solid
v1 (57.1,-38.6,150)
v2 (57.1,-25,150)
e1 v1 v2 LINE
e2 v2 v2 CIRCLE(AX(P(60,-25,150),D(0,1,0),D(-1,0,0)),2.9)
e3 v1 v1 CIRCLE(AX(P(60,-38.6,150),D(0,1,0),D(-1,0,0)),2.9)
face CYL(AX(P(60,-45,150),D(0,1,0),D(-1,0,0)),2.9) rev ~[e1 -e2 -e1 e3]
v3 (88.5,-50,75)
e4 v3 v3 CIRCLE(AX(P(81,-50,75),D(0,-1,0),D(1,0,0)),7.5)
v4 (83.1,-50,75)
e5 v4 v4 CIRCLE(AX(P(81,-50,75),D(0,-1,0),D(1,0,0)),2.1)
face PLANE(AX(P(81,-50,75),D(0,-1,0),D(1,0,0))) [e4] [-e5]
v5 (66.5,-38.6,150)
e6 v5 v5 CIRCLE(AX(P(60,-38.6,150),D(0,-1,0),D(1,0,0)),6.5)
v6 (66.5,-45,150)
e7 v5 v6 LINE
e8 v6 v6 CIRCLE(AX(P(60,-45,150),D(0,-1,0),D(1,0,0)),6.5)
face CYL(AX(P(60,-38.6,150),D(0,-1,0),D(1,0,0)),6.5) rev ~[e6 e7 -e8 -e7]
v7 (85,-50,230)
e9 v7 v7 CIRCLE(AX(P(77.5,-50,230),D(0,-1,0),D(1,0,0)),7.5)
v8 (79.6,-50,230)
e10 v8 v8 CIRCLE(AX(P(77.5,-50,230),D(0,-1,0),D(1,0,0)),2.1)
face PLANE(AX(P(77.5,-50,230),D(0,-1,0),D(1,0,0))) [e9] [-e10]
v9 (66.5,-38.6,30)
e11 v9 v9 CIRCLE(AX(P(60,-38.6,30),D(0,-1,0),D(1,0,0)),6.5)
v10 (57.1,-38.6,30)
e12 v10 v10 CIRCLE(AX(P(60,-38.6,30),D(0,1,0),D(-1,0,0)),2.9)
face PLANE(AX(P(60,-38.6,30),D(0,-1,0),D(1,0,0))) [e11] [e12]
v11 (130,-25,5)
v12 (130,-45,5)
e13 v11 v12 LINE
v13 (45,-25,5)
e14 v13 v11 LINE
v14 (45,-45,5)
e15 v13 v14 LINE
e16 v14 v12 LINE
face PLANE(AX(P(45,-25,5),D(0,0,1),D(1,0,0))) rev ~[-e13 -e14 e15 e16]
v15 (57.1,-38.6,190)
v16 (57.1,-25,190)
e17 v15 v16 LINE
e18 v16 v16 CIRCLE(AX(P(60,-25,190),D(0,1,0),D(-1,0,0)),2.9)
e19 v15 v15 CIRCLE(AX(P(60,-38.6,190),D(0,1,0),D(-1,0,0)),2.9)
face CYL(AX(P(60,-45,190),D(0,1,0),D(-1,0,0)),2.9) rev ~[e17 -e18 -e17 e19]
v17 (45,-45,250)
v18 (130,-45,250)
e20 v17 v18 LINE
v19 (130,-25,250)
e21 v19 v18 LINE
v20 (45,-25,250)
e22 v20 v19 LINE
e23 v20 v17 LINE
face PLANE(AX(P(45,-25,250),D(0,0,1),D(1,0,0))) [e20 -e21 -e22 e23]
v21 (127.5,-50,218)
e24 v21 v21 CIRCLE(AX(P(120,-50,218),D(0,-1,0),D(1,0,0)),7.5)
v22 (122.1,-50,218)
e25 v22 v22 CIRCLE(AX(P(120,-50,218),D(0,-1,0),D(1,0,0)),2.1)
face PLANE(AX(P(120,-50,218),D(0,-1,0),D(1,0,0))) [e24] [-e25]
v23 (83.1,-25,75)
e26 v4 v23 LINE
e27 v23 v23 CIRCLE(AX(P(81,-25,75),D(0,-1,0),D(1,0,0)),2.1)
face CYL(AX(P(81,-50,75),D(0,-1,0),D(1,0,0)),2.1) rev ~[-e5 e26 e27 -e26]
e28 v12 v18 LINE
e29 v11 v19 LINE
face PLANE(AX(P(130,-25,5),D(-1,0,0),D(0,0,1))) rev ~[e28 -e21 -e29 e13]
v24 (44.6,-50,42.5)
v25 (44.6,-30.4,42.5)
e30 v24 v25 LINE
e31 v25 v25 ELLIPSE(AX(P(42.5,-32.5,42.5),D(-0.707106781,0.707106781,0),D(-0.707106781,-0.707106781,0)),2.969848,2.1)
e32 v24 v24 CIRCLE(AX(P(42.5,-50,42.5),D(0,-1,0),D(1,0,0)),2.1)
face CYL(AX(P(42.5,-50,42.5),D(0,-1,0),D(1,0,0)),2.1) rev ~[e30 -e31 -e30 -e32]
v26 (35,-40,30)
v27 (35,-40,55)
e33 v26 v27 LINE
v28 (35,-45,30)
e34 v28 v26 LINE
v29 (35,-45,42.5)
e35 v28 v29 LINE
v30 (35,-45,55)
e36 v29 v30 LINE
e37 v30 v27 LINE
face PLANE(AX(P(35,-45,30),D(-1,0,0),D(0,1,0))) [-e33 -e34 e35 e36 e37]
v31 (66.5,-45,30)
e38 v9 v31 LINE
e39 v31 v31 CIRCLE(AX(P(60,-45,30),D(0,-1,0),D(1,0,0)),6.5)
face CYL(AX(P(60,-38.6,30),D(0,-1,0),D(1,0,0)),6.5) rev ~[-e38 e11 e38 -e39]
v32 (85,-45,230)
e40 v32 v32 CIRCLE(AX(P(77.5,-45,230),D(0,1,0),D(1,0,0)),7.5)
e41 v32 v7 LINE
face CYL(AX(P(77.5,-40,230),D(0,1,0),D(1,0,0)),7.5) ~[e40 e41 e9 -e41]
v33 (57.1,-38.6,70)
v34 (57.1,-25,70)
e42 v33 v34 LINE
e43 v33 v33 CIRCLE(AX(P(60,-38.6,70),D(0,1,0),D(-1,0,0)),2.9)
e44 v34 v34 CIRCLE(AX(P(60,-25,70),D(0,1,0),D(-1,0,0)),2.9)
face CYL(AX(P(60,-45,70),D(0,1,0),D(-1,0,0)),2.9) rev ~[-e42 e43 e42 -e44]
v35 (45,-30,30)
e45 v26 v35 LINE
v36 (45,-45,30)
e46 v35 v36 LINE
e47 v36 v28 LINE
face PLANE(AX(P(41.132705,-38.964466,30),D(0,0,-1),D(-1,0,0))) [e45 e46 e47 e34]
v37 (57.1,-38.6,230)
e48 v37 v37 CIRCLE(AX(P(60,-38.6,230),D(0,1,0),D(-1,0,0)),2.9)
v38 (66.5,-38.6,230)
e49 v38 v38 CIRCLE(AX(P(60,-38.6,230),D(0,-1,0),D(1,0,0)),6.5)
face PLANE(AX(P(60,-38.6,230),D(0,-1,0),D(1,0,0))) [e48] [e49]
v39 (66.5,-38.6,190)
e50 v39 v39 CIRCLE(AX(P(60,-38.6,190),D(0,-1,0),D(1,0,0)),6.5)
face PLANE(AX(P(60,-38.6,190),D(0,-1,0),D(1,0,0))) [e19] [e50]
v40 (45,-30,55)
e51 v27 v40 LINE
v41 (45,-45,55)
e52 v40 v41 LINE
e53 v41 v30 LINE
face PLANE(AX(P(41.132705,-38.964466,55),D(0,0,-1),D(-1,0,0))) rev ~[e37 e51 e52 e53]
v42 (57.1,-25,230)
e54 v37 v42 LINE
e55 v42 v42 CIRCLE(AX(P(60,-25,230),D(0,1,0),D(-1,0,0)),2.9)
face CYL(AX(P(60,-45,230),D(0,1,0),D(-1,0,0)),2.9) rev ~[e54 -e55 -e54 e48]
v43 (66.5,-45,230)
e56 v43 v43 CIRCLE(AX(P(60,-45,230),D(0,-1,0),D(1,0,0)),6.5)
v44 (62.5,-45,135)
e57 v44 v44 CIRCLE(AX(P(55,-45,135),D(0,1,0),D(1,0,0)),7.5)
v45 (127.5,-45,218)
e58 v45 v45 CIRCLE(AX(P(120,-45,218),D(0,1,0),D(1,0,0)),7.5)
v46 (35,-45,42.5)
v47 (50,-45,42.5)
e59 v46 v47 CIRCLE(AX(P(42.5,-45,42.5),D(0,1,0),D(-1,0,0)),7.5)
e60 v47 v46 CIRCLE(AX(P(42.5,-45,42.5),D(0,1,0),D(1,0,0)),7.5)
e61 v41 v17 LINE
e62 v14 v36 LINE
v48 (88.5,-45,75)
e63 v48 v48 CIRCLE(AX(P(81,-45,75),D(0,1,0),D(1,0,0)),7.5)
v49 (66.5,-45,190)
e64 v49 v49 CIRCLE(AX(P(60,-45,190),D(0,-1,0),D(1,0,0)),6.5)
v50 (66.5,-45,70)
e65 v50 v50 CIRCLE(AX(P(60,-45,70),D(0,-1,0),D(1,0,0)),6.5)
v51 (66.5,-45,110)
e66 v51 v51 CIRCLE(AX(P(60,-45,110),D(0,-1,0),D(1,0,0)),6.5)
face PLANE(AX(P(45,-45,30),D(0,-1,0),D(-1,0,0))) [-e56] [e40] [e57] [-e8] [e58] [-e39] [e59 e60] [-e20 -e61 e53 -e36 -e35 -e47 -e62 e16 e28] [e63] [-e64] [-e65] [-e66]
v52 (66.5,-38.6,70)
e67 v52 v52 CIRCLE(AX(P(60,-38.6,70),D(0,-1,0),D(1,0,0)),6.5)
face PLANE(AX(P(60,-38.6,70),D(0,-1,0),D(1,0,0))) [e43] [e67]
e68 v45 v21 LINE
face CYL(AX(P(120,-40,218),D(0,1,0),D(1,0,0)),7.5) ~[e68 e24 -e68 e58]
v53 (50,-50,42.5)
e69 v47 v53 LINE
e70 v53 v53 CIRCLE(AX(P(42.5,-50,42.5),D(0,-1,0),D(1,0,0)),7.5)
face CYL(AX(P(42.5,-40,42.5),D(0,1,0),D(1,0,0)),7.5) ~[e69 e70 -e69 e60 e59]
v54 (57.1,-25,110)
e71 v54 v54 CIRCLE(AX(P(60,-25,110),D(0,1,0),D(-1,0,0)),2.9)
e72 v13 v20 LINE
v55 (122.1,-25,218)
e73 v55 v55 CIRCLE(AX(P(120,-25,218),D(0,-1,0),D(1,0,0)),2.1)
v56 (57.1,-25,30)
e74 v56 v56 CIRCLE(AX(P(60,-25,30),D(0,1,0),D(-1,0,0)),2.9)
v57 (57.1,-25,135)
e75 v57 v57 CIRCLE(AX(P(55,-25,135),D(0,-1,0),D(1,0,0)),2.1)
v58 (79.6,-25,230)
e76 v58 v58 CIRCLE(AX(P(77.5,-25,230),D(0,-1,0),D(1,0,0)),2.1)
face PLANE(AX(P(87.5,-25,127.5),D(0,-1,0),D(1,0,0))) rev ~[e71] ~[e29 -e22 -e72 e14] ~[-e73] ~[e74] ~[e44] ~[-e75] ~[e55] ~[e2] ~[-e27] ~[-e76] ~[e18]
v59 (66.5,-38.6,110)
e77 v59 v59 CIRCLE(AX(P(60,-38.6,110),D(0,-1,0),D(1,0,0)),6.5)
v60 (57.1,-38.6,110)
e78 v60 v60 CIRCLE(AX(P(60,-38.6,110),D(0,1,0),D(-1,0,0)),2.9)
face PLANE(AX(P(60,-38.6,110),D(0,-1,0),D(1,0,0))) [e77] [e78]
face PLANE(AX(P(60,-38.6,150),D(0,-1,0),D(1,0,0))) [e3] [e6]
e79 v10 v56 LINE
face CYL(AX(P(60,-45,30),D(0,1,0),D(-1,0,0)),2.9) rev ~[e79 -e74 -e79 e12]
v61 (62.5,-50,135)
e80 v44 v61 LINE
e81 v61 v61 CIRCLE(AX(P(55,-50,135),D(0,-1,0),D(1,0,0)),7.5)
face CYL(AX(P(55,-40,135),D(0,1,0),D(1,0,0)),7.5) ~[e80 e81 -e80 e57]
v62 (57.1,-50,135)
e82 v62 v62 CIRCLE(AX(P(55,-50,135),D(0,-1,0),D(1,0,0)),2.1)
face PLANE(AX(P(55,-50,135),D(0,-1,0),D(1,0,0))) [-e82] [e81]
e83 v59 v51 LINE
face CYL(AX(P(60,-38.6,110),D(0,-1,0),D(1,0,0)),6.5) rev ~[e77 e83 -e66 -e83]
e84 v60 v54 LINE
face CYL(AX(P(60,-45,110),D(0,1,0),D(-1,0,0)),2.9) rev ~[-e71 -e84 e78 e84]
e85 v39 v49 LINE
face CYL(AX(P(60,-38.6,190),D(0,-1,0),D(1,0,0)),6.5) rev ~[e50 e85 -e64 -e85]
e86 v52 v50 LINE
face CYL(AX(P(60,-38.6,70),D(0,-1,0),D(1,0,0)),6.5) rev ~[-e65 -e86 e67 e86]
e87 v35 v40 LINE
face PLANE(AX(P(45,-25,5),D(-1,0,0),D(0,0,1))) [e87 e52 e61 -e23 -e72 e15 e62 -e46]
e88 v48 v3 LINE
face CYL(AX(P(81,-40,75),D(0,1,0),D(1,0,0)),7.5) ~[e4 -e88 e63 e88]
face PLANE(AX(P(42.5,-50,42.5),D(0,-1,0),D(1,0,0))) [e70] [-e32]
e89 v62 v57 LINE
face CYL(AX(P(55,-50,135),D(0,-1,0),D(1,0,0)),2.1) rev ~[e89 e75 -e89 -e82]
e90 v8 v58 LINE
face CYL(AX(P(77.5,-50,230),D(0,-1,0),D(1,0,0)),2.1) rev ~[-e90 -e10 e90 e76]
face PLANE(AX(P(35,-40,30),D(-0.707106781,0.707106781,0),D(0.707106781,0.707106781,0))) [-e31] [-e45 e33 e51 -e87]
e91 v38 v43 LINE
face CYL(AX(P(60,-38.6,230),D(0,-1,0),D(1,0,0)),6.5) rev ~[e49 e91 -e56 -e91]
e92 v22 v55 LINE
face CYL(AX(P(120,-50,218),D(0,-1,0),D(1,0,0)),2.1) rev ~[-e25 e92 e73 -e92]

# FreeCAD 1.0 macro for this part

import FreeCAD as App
import Part
import Sketcher

V = App.Vector

doc = App.newDocument("Part")
body = doc.addObject("PartDesign::Body", "Body")

# Sketch on XZ plane
sketch1 = body.newObject("Sketcher::SketchObject", "Sketch")
sketch1.AttachmentSupport = (doc.getObject("XZ_Plane"), [""])
sketch1.MapMode = "FlatFace"
sketch1.AttachmentOffset = App.Placement(V(0, 0, 25), App.Rotation())
sketch1.addGeometry(Part.LineSegment(V(45, 250, 0), V(45, 5, 0)), False)
sketch1.addGeometry(Part.LineSegment(V(45, 5, 0), V(130, 5, 0)), False)
sketch1.addGeometry(Part.LineSegment(V(130, 5, 0), V(130, 250, 0)), False)
sketch1.addGeometry(Part.LineSegment(V(130, 250, 0), V(45, 250, 0)), False)
sketch1.addConstraint(Sketcher.Constraint("Coincident", 0, 2, 1, 1))
sketch1.addConstraint(Sketcher.Constraint("Coincident", 1, 2, 2, 1))
sketch1.addConstraint(Sketcher.Constraint("Coincident", 2, 2, 3, 1))
sketch1.addConstraint(Sketcher.Constraint("Coincident", 3, 2, 0, 1))
sketch1.addConstraint(Sketcher.Constraint("Vertical", 0))
sketch1.addConstraint(Sketcher.Constraint("Horizontal", 1))
sketch1.addConstraint(Sketcher.Constraint("Vertical", 2))
sketch1.addConstraint(Sketcher.Constraint("Horizontal", 3))
sketch1.addConstraint(Sketcher.Constraint("DistanceX", 1, 1, 1, 2, 85.0))
sketch1.addConstraint(Sketcher.Constraint("DistanceY", 0, 2, 0, 1, 245.0))
sketch1.addConstraint(Sketcher.Constraint("DistanceX", -1, 1, 0, 2, 45.0))
sketch1.addConstraint(Sketcher.Constraint("DistanceY", -1, 1, 0, 2, 5.0))
pad1 = body.newObject("PartDesign::Pad", "Pad")
pad1.Profile = sketch1
pad1.Length = 20

# Sketch on XZ plane
sketch2 = body.newObject("Sketcher::SketchObject", "Sketch001")
sketch2.AttachmentSupport = (doc.getObject("XZ_Plane"), [""])
sketch2.MapMode = "FlatFace"
sketch2.AttachmentOffset = App.Placement(V(0, 0, 40), App.Rotation())
sketch2.addGeometry(Part.Circle(V(77.5, 230, 0), V(0, 0, 1), 7.5), False)
sketch2.addGeometry(Part.Circle(V(120, 218, 0), V(0, 0, 1), 7.5), False)
sketch2.addGeometry(Part.Circle(V(55, 135, 0), V(0, 0, 1), 7.5), False)
sketch2.addGeometry(Part.Circle(V(42.5, 42.5, 0), V(0, 0, 1), 7.5), False)
sketch2.addGeometry(Part.Circle(V(81, 75, 0), V(0, 0, 1), 7.5), False)
sketch2.addConstraint(Sketcher.Constraint("Equal", 0, 1))
sketch2.addConstraint(Sketcher.Constraint("Equal", 1, 2))
sketch2.addConstraint(Sketcher.Constraint("Equal", 2, 3))
sketch2.addConstraint(Sketcher.Constraint("Equal", 3, 4))
sketch2.addConstraint(Sketcher.Constraint("Diameter", 0, 15.0))
sketch2.addConstraint(Sketcher.Constraint("DistanceY", -1, 1, 0, 3, 230.0))
sketch2.addConstraint(Sketcher.Constraint("DistanceX", -1, 1, 1, 3, 120.0))
sketch2.addConstraint(Sketcher.Constraint("DistanceY", -1, 1, 1, 3, 218.0))
sketch2.addConstraint(Sketcher.Constraint("DistanceX", -1, 1, 2, 3, 55.0))
sketch2.addConstraint(Sketcher.Constraint("DistanceY", -1, 1, 2, 3, 135.0))
sketch2.addConstraint(Sketcher.Constraint("DistanceX", -1, 1, 4, 3, 81.0))
sketch2.addConstraint(Sketcher.Constraint("DistanceY", -1, 1, 4, 3, 75.0))
sketch2.addConstraint(Sketcher.Constraint("DistanceX", 3, 3, 0, 3, 35.0))
sketch2.addConstraint(Sketcher.Constraint("DistanceX", -1, 1, 0, 3, 77.5))
sketch2.addConstraint(Sketcher.Constraint("DistanceY", -1, 1, 3, 3, 42.5))
pad2 = body.newObject("PartDesign::Pad", "Pad001")
pad2.Profile = sketch2
pad2.Length = 10

# Sketch on XY plane
sketch3 = body.newObject("Sketcher::SketchObject", "Sketch002")
sketch3.AttachmentSupport = (doc.getObject("XY_Plane"), [""])
sketch3.MapMode = "FlatFace"
sketch3.AttachmentOffset = App.Placement(V(0, 0, 30), App.Rotation())
sketch3.addGeometry(Part.LineSegment(V(45, -30, 0), V(35, -40, 0)), False)
sketch3.addGeometry(Part.LineSegment(V(35, -40, 0), V(35, -45, 0)), False)
sketch3.addGeometry(Part.LineSegment(V(35, -45, 0), V(45, -45, 0)), False)
sketch3.addGeometry(Part.LineSegment(V(45, -45, 0), V(45, -30, 0)), False)
sketch3.addConstraint(Sketcher.Constraint("Coincident", 0, 2, 1, 1))
sketch3.addConstraint(Sketcher.Constraint("Coincident", 1, 2, 2, 1))
sketch3.addConstraint(Sketcher.Constraint("Coincident", 2, 2, 3, 1))
sketch3.addConstraint(Sketcher.Constraint("Coincident", 3, 2, 0, 1))
sketch3.addConstraint(Sketcher.Constraint("Vertical", 1))
sketch3.addConstraint(Sketcher.Constraint("Horizontal", 2))
sketch3.addConstraint(Sketcher.Constraint("Vertical", 3))
sketch3.addConstraint(Sketcher.Constraint("DistanceX", 2, 1, 2, 2, 10.0))
sketch3.addConstraint(Sketcher.Constraint("DistanceY", 1, 2, 1, 1, 5.0))
sketch3.addConstraint(Sketcher.Constraint("DistanceY", 3, 1, 3, 2, 15.0))
sketch3.addConstraint(Sketcher.Constraint("DistanceX", -1, 1, 0, 2, 35.0))
sketch3.addConstraint(Sketcher.Constraint("DistanceY", 0, 2, -1, 1, 40.0))
pad3 = body.newObject("PartDesign::Pad", "Pad002")
pad3.Profile = sketch3
pad3.Length = 25

# Sketch on XZ plane
sketch4 = body.newObject("Sketcher::SketchObject", "Sketch003")
sketch4.AttachmentSupport = (doc.getObject("XZ_Plane"), [""])
sketch4.MapMode = "FlatFace"
sketch4.AttachmentOffset = App.Placement(V(0, 0, 50), App.Rotation())
sketch4.addGeometry(Part.Circle(V(77.5, 230, 0), V(0, 0, 1), 2.1), False)
sketch4.addGeometry(Part.Circle(V(120, 218, 0), V(0, 0, 1), 2.1), False)
sketch4.addGeometry(Part.Circle(V(55, 135, 0), V(0, 0, 1), 2.1), False)
sketch4.addGeometry(Part.Circle(V(42.5, 42.5, 0), V(0, 0, 1), 2.1), False)
sketch4.addGeometry(Part.Circle(V(81, 75, 0), V(0, 0, 1), 2.1), False)
sketch4.addConstraint(Sketcher.Constraint("Equal", 0, 1))
sketch4.addConstraint(Sketcher.Constraint("Equal", 1, 2))
sketch4.addConstraint(Sketcher.Constraint("Equal", 2, 3))
sketch4.addConstraint(Sketcher.Constraint("Equal", 3, 4))
sketch4.addConstraint(Sketcher.Constraint("Diameter", 0, 4.2))
sketch4.addConstraint(Sketcher.Constraint("DistanceY", -1, 1, 0, 3, 230.0))
sketch4.addConstraint(Sketcher.Constraint("DistanceX", -1, 1, 1, 3, 120.0))
sketch4.addConstraint(Sketcher.Constraint("DistanceY", -1, 1, 1, 3, 218.0))
sketch4.addConstraint(Sketcher.Constraint("DistanceX", -1, 1, 2, 3, 55.0))
sketch4.addConstraint(Sketcher.Constraint("DistanceY", -1, 1, 2, 3, 135.0))
sketch4.addConstraint(Sketcher.Constraint("DistanceX", -1, 1, 4, 3, 81.0))
sketch4.addConstraint(Sketcher.Constraint("DistanceY", -1, 1, 4, 3, 75.0))
sketch4.addConstraint(Sketcher.Constraint("DistanceX", 3, 3, 0, 3, 35.0))
sketch4.addConstraint(Sketcher.Constraint("DistanceX", -1, 1, 0, 3, 77.5))
sketch4.addConstraint(Sketcher.Constraint("DistanceY", -1, 1, 3, 3, 42.5))
pocket1 = body.newObject("PartDesign::Pocket", "Pocket")
pocket1.Profile = sketch4
pocket1.Type = "ThroughAll"

# Sketch on XZ plane
sketch5 = body.newObject("Sketcher::SketchObject", "Sketch004")
sketch5.AttachmentSupport = (doc.getObject("XZ_Plane"), [""])
sketch5.MapMode = "FlatFace"
sketch5.AttachmentOffset = App.Placement(V(0, 0, 45), App.Rotation())
sketch5.addGeometry(Part.Circle(V(60, 230, 0), V(0, 0, 1), 2.9), False)
sketch5.addGeometry(Part.Circle(V(60, 190, 0), V(0, 0, 1), 2.9), False)
sketch5.addGeometry(Part.Circle(V(60, 150, 0), V(0, 0, 1), 2.9), False)
sketch5.addGeometry(Part.Circle(V(60, 110, 0), V(0, 0, 1), 2.9), False)
sketch5.addGeometry(Part.Circle(V(60, 70, 0), V(0, 0, 1), 2.9), False)
sketch5.addGeometry(Part.Circle(V(60, 30, 0), V(0, 0, 1), 2.9), False)
sketch5.addConstraint(Sketcher.Constraint("Equal", 0, 1))
sketch5.addConstraint(Sketcher.Constraint("Equal", 1, 2))
sketch5.addConstraint(Sketcher.Constraint("Equal", 2, 3))
sketch5.addConstraint(Sketcher.Constraint("Equal", 3, 4))
sketch5.addConstraint(Sketcher.Constraint("Equal", 4, 5))
sketch5.addConstraint(Sketcher.Constraint("Vertical", 0, 3, 1, 3))
sketch5.addConstraint(Sketcher.Constraint("Vertical", 1, 3, 2, 3))
sketch5.addConstraint(Sketcher.Constraint("Vertical", 2, 3, 3, 3))
sketch5.addConstraint(Sketcher.Constraint("Vertical", 3, 3, 4, 3))
sketch5.addConstraint(Sketcher.Constraint("Vertical", 4, 3, 5, 3))
sketch5.addConstraint(Sketcher.Constraint("Diameter", 0, 5.8))
sketch5.addConstraint(Sketcher.Constraint("DistanceX", -1, 1, 0, 3, 60.0))
sketch5.addConstraint(Sketcher.Constraint("DistanceY", -1, 1, 0, 3, 230.0))
sketch5.addConstraint(Sketcher.Constraint("DistanceY", -1, 1, 1, 3, 190.0))
sketch5.addConstraint(Sketcher.Constraint("DistanceY", -1, 1, 2, 3, 150.0))
sketch5.addConstraint(Sketcher.Constraint("DistanceY", -1, 1, 3, 3, 110.0))
sketch5.addConstraint(Sketcher.Constraint("DistanceY", -1, 1, 4, 3, 70.0))
sketch5.addConstraint(Sketcher.Constraint("DistanceY", -1, 1, 5, 3, 30.0))
doc.recompute()
hole = body.newObject("PartDesign::Hole", "Hole")
hole.Profile = sketch5
hole.ThreadType = "None"
hole.Diameter = 5.8
hole.DepthType = "Dimension"
hole.Depth = 25
hole.DrillPoint = "Flat"
hole.HoleCutType = "Counterbore"
hole.HoleCutDiameter = 13
hole.HoleCutDepth = 6.4

doc.recompute()
